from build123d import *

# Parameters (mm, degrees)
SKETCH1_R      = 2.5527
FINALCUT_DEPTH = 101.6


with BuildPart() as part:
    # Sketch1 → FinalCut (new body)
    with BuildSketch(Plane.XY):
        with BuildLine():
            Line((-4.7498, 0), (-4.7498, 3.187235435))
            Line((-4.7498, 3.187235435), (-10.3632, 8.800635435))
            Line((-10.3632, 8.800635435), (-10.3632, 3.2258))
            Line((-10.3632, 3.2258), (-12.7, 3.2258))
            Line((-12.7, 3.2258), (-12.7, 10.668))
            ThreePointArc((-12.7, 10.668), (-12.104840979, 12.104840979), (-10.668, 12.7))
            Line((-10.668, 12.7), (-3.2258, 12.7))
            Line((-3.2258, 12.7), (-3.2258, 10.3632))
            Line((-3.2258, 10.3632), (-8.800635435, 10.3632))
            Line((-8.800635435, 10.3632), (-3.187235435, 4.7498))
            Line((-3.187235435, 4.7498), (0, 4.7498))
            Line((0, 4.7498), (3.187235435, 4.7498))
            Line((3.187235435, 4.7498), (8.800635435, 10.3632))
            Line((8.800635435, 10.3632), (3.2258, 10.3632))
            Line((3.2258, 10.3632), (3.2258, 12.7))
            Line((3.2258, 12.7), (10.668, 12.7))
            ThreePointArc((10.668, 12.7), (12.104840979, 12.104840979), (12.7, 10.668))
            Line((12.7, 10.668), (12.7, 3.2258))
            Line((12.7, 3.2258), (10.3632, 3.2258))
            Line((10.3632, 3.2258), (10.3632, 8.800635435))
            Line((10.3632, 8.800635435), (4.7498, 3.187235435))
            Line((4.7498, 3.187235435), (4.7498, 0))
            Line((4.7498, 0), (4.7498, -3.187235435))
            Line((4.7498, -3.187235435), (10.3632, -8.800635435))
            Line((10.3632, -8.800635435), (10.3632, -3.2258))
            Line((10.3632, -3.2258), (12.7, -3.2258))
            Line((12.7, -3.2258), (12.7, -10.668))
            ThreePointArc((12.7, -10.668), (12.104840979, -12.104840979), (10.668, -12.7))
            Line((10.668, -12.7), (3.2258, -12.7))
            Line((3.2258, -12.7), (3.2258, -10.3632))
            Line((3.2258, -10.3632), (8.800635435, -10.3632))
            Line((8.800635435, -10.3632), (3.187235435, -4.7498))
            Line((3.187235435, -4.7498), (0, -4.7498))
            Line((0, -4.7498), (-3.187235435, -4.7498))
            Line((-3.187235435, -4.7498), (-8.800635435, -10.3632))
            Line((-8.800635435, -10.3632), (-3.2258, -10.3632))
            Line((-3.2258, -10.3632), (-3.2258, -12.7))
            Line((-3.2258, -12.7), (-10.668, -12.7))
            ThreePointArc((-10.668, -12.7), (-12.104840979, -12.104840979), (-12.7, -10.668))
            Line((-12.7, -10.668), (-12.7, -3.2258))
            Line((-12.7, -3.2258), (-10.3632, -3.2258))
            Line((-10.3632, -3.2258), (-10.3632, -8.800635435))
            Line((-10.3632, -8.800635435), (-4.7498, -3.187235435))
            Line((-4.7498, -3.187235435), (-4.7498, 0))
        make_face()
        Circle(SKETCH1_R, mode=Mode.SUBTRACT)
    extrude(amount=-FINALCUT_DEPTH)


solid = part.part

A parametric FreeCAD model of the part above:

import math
import FreeCAD as App
import Part
import Sketcher
Q = App.Units.Quantity

doc = App.newDocument("Part")
body = doc.addObject("PartDesign::Body", "Body")

# Sketch on XY plane
sketch1 = body.newObject("Sketcher::SketchObject", "Sketch")
sketch1.AttachmentSupport = (doc.getObject("XY_Plane"), [""])
sketch1.MapMode = "FlatFace"
sketch1.addGeometry([
    Part.LineSegment(App.Vector(-10.3632, 8.800635, 0), App.Vector(-4.7498, 3.187235, 0)),  # 0
    Part.LineSegment(App.Vector(-4.7498, 3.187235, 0), App.Vector(-4.7498, -3.187235, 0)),  # 1
    Part.LineSegment(App.Vector(-4.7498, -3.187235, 0), App.Vector(-10.3632, -8.800635, 0)),  # 2
    Part.LineSegment(App.Vector(-10.3632, -8.800635, 0), App.Vector(-10.3632, -3.2258, 0)),  # 3
    Part.LineSegment(App.Vector(-10.3632, -3.2258, 0), App.Vector(-12.7, -3.2258, 0)),  # 4
    Part.LineSegment(App.Vector(-12.7, -3.2258, 0), App.Vector(-12.7, -10.668, 0)),  # 5
    Part.ArcOfCircle(Part.Circle(App.Vector(-10.668, -10.668, 0), App.Vector(0, 0, 1), 2.032), math.radians(-180), math.radians(-90)),  # 6
    Part.LineSegment(App.Vector(-10.668, -12.7, 0), App.Vector(-3.2258, -12.7, 0)),  # 7
    Part.LineSegment(App.Vector(-3.2258, -12.7, 0), App.Vector(-3.2258, -10.3632, 0)),  # 8
    Part.LineSegment(App.Vector(-3.2258, -10.3632, 0), App.Vector(-8.800635, -10.3632, 0)),  # 9
    Part.LineSegment(App.Vector(-8.800635, -10.3632, 0), App.Vector(-3.187235, -4.7498, 0)),  # 10
    Part.LineSegment(App.Vector(-3.187235, -4.7498, 0), App.Vector(3.187235, -4.7498, 0)),  # 11
    Part.LineSegment(App.Vector(3.187235, -4.7498, 0), App.Vector(8.800635, -10.3632, 0)),  # 12
    Part.LineSegment(App.Vector(8.800635, -10.3632, 0), App.Vector(3.2258, -10.3632, 0)),  # 13
    Part.LineSegment(App.Vector(3.2258, -10.3632, 0), App.Vector(3.2258, -12.7, 0)),  # 14
    Part.LineSegment(App.Vector(3.2258, -12.7, 0), App.Vector(10.668, -12.7, 0)),  # 15
    Part.ArcOfCircle(Part.Circle(App.Vector(10.668, -10.668, 0), App.Vector(0, 0, 1), 2.032), math.radians(-90), math.radians(0)),  # 16
    Part.LineSegment(App.Vector(12.7, -10.668, 0), App.Vector(12.7, -3.2258, 0)),  # 17
    Part.LineSegment(App.Vector(12.7, -3.2258, 0), App.Vector(10.3632, -3.2258, 0)),  # 18
    Part.LineSegment(App.Vector(10.3632, -3.2258, 0), App.Vector(10.3632, -8.800635, 0)),  # 19
    Part.LineSegment(App.Vector(10.3632, -8.800635, 0), App.Vector(4.7498, -3.187235, 0)),  # 20
    Part.LineSegment(App.Vector(4.7498, -3.187235, 0), App.Vector(4.7498, 3.187235, 0)),  # 21
    Part.LineSegment(App.Vector(4.7498, 3.187235, 0), App.Vector(10.3632, 8.800635, 0)),  # 22
    Part.LineSegment(App.Vector(10.3632, 8.800635, 0), App.Vector(10.3632, 3.2258, 0)),  # 23
    Part.LineSegment(App.Vector(10.3632, 3.2258, 0), App.Vector(12.7, 3.2258, 0)),  # 24
    Part.LineSegment(App.Vector(12.7, 3.2258, 0), App.Vector(12.7, 10.668, 0)),  # 25
    Part.ArcOfCircle(Part.Circle(App.Vector(10.668, 10.668, 0), App.Vector(0, 0, 1), 2.032), math.radians(0), math.radians(90)),  # 26
    Part.LineSegment(App.Vector(10.668, 12.7, 0), App.Vector(3.2258, 12.7, 0)),  # 27
    Part.LineSegment(App.Vector(3.2258, 12.7, 0), App.Vector(3.2258, 10.3632, 0)),  # 28
    Part.LineSegment(App.Vector(3.2258, 10.3632, 0), App.Vector(8.800635, 10.3632, 0)),  # 29
    Part.LineSegment(App.Vector(8.800635, 10.3632, 0), App.Vector(3.187235, 4.7498, 0)),  # 30
    Part.LineSegment(App.Vector(3.187235, 4.7498, 0), App.Vector(-3.187235, 4.7498, 0)),  # 31
    Part.LineSegment(App.Vector(-3.187235, 4.7498, 0), App.Vector(-8.800635, 10.3632, 0)),  # 32
    Part.LineSegment(App.Vector(-8.800635, 10.3632, 0), App.Vector(-3.2258, 10.3632, 0)),  # 33
    Part.LineSegment(App.Vector(-3.2258, 10.3632, 0), App.Vector(-3.2258, 12.7, 0)),  # 34
    Part.LineSegment(App.Vector(-3.2258, 12.7, 0), App.Vector(-10.668, 12.7, 0)),  # 35
    Part.ArcOfCircle(Part.Circle(App.Vector(-10.668, 10.668, 0), App.Vector(0, 0, 1), 2.032), math.radians(90), math.radians(180)),  # 36
    Part.LineSegment(App.Vector(-12.7, 10.668, 0), App.Vector(-12.7, 3.2258, 0)),  # 37
    Part.LineSegment(App.Vector(-12.7, 3.2258, 0), App.Vector(-10.3632, 3.2258, 0)),  # 38
    Part.LineSegment(App.Vector(-10.3632, 3.2258, 0), App.Vector(-10.3632, 8.800635, 0)),  # 39
    Part.Circle(App.Vector(0, 0, 0), App.Vector(0, 0, 1), 2.5527),  # 40
], False)
sketch1.addConstraint([
    Sketcher.Constraint("Coincident", 0, 2, 1, 1),
    Sketcher.Constraint("Coincident", 1, 2, 2, 1),
    Sketcher.Constraint("Coincident", 2, 2, 3, 1),
    Sketcher.Constraint("Coincident", 3, 2, 4, 1),
    Sketcher.Constraint("Coincident", 4, 2, 5, 1),
    Sketcher.Constraint("Tangent", 5, 2, 6, 1),
    Sketcher.Constraint("Tangent", 6, 2, 7, 1),
    Sketcher.Constraint("Coincident", 7, 2, 8, 1),
    Sketcher.Constraint("Coincident", 8, 2, 9, 1),
    Sketcher.Constraint("Coincident", 9, 2, 10, 1),
    Sketcher.Constraint("Coincident", 10, 2, 11, 1),
    Sketcher.Constraint("Coincident", 11, 2, 12, 1),
    Sketcher.Constraint("Coincident", 12, 2, 13, 1),
    Sketcher.Constraint("Coincident", 13, 2, 14, 1),
    Sketcher.Constraint("Coincident", 14, 2, 15, 1),
    Sketcher.Constraint("Tangent", 15, 2, 16, 1),
    Sketcher.Constraint("Tangent", 16, 2, 17, 1),
    Sketcher.Constraint("Coincident", 17, 2, 18, 1),
    Sketcher.Constraint("Coincident", 18, 2, 19, 1),
    Sketcher.Constraint("Coincident", 19, 2, 20, 1),
    Sketcher.Constraint("Coincident", 20, 2, 21, 1),
    Sketcher.Constraint("Coincident", 21, 2, 22, 1),
    Sketcher.Constraint("Coincident", 22, 2, 23, 1),
    Sketcher.Constraint("Coincident", 23, 2, 24, 1),
    Sketcher.Constraint("Coincident", 24, 2, 25, 1),
    Sketcher.Constraint("Tangent", 25, 2, 26, 1),
    Sketcher.Constraint("Tangent", 26, 2, 27, 1),
    Sketcher.Constraint("Coincident", 27, 2, 28, 1),
    Sketcher.Constraint("Coincident", 28, 2, 29, 1),
    Sketcher.Constraint("Coincident", 29, 2, 30, 1),
    Sketcher.Constraint("Coincident", 30, 2, 31, 1),
    Sketcher.Constraint("Coincident", 31, 2, 32, 1),
    Sketcher.Constraint("Coincident", 32, 2, 33, 1),
    Sketcher.Constraint("Coincident", 33, 2, 34, 1),
    Sketcher.Constraint("Coincident", 34, 2, 35, 1),
    Sketcher.Constraint("Tangent", 35, 2, 36, 1),
    Sketcher.Constraint("Tangent", 36, 2, 37, 1),
    Sketcher.Constraint("Coincident", 37, 2, 38, 1),
    Sketcher.Constraint("Coincident", 38, 2, 39, 1),
    Sketcher.Constraint("Coincident", 39, 2, 0, 1),
    Sketcher.Constraint("Vertical", 1),
    Sketcher.Constraint("Vertical", 3),
    Sketcher.Constraint("Horizontal", 4),
    Sketcher.Constraint("Vertical", 5),
    Sketcher.Constraint("Horizontal", 7),
    Sketcher.Constraint("Vertical", 8),
    Sketcher.Constraint("Horizontal", 9),
    Sketcher.Constraint("Horizontal", 11),
    Sketcher.Constraint("Horizontal", 13),
    Sketcher.Constraint("Vertical", 14),
    Sketcher.Constraint("Horizontal", 15),
    Sketcher.Constraint("Vertical", 17),
    Sketcher.Constraint("Horizontal", 18),
    Sketcher.Constraint("Vertical", 19),
    Sketcher.Constraint("Vertical", 21),
    Sketcher.Constraint("Vertical", 23),
    Sketcher.Constraint("Horizontal", 24),
    Sketcher.Constraint("Vertical", 25),
    Sketcher.Constraint("Horizontal", 27),
    Sketcher.Constraint("Vertical", 28),
    Sketcher.Constraint("Horizontal", 29),
    Sketcher.Constraint("Horizontal", 31),
    Sketcher.Constraint("Horizontal", 33),
    Sketcher.Constraint("Vertical", 34),
    Sketcher.Constraint("Horizontal", 35),
    Sketcher.Constraint("Vertical", 37),
    Sketcher.Constraint("Horizontal", 38),
    Sketcher.Constraint("Vertical", 39),
    Sketcher.Constraint("Coincident", 40, 3, -1, 1),
    Sketcher.Constraint("Equal", 6, 16),
    Sketcher.Constraint("Equal", 16, 26),
    Sketcher.Constraint("Equal", 26, 36),
    Sketcher.Constraint("Symmetric", 6, 3, 26, 3, -1, 1),
    Sketcher.Constraint("Symmetric", 16, 3, 36, 3, -1, 1),
    Sketcher.Constraint("Symmetric", 0, 2, 20, 2, -1, 1),
    Sketcher.Constraint("Symmetric", 2, 2, 22, 2, -1, 1),
    Sketcher.Constraint("Symmetric", 8, 2, 28, 2, -1, 1),
    Sketcher.Constraint("Symmetric", 10, 2, 30, 2, -1, 1),
    Sketcher.Constraint("Symmetric", 12, 2, 32, 2, -1, 1),
    Sketcher.Constraint("Symmetric", 18, 2, 38, 2, -1, 1),
    Sketcher.Constraint("Symmetric", 6, 3, 16, 3, -2),
    Sketcher.Constraint("Symmetric", 9, 2, 12, 2, -2),
    Sketcher.Constraint("Symmetric", 3, 2, 18, 2, -2),
    Sketcher.Constraint("Perpendicular", 0, 2),
    Sketcher.Constraint("Parallel", 2, 10),
    Sketcher.Constraint("Perpendicular", 10, 12),
    Sketcher.Constraint("Parallel", 12, 20),
    Sketcher.Constraint("Perpendicular", 20, 22),
    Sketcher.Constraint("Parallel", 22, 30),
    Sketcher.Constraint("Perpendicular", 30, 32),
    Sketcher.Constraint("Horizontal", 2, 2, 19, 2),
    Sketcher.Constraint("Horizontal", 1, 2, 20, 2),
    Sketcher.Constraint("Horizontal", 24, 2, 37, 2),
    Sketcher.Constraint("Vertical", 14, 2, 27, 2),
    Sketcher.Constraint("Vertical", 8, 2, 33, 2),
    Sketcher.Constraint("Equal", 31, 1),
    Sketcher.Constraint("Equal", 33, 3),
    Sketcher.Constraint("Equal", 35, 5),
    Sketcher.Constraint("Equal", 38, 8),
    Sketcher.Constraint("Equal", 2, 10),
    Sketcher.Constraint("Radius", 6, Q("0.08 in")),
    Sketcher.Constraint("Diameter", 40, Q("0.201 in")),
    Sketcher.Constraint("DistanceX", 4, 2, -1, 1, Q("0.5 in")),
    Sketcher.Constraint("DistanceX", 4, 2, 4, 1, Q("0.092 in")),
    Sketcher.Constraint("DistanceX", 7, 1, 7, 2, Q("0.293 in")),
    Sketcher.Constraint("DistanceX", 1, 2, 7, 2, Q("0.06 in")),
    Sketcher.Constraint("DistanceX", 11, 1, 11, 2, 6.374471),
])
pad1 = body.newObject("PartDesign::Pad", "Pad")
pad1.Profile = sketch1
pad1.Length = Q("4 in")
pad1.Reversed = True

doc.recompute()
